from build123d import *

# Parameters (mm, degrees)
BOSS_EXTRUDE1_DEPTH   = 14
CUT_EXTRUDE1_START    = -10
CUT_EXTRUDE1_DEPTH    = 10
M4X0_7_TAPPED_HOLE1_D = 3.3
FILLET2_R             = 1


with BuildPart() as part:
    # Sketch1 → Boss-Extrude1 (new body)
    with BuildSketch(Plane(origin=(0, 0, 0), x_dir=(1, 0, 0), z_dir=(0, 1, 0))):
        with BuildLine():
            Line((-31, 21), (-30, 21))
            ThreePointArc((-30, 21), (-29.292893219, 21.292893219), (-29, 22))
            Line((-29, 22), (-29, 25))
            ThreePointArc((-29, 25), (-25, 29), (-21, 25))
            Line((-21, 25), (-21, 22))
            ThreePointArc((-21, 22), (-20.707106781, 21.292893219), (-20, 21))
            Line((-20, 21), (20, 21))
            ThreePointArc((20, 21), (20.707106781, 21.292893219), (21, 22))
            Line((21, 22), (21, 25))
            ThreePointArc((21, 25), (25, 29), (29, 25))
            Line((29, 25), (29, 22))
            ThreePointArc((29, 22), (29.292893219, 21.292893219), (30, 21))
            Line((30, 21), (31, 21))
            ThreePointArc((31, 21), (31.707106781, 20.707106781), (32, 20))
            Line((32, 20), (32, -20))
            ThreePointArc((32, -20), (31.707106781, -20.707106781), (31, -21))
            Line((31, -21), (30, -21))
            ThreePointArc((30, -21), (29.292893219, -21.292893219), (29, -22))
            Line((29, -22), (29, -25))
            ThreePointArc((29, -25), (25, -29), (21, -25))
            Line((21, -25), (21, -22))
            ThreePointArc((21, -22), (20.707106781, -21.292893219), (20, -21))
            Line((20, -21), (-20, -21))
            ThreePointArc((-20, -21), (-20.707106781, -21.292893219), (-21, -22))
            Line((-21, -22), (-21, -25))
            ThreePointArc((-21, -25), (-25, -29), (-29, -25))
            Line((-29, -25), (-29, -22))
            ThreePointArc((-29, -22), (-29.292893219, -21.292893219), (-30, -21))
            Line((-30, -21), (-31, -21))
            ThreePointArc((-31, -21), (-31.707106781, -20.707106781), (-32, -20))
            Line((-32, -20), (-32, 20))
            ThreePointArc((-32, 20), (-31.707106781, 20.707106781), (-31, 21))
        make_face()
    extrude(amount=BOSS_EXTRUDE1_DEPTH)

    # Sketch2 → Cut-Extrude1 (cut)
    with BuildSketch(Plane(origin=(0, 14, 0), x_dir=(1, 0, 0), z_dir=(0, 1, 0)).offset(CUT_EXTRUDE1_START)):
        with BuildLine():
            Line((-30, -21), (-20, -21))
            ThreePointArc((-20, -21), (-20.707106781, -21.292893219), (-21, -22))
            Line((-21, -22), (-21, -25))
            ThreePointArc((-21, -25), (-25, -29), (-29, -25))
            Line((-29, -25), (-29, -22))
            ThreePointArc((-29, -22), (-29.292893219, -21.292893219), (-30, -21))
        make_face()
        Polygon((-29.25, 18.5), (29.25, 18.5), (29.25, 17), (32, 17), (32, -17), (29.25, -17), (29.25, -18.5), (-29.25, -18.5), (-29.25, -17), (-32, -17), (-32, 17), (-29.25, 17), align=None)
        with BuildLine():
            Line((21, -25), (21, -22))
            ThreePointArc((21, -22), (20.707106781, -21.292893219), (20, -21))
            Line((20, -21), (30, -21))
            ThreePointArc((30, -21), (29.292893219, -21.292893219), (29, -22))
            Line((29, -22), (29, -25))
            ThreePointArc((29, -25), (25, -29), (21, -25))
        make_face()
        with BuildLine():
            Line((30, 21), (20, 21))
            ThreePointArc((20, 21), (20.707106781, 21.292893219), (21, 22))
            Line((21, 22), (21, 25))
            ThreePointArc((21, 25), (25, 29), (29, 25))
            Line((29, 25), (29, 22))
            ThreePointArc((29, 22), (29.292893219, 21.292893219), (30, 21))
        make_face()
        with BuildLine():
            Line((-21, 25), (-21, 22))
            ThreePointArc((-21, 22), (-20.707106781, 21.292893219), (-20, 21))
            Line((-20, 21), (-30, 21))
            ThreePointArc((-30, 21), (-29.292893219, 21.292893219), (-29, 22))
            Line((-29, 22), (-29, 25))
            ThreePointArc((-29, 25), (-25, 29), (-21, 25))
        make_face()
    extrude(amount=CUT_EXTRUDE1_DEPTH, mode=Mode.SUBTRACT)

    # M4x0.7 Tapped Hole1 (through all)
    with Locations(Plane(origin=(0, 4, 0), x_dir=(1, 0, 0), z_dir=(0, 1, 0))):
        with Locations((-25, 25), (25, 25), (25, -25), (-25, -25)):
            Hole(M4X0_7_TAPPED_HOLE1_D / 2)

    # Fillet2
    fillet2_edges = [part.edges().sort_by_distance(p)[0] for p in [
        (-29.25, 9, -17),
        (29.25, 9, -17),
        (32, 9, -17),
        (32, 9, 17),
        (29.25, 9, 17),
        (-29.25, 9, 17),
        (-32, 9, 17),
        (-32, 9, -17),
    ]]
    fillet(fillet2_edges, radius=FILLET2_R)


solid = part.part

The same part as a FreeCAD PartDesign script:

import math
import FreeCAD as App
import Part
import Sketcher
from FreeCAD import Vector


def edges_at(feature, points):
    """Names of the edges that pass closest to the given points."""
    edges = feature.Shape.Edges
    near = lambda p: min(range(len(edges)), key=lambda i: edges[i].distToShape(Part.Vertex(*p))[0])
    return sorted({f"Edge{near(p) + 1}" for p in points})

doc = App.newDocument("Part")
body = doc.addObject("PartDesign::Body", "Body")

# Sketch on XZ plane
sketch1 = doc.addObject("Sketcher::SketchObject", "Sketch")
body.addObject(sketch1)
sketch1.AttachmentSupport = (doc.XZ_Plane, [""])
sketch1.MapMode = "FlatFace"
sketch1.addGeometry(Part.LineSegment(Vector(-30, -21, 0), Vector(-31, -21, 0)), False)
sketch1.addGeometry(Part.ArcOfCircle(Part.Circle(Vector(-31, -20, 0), Vector(0, 0, 1), 1), math.radians(-180), math.radians(-90)), False)
sketch1.addGeometry(Part.LineSegment(Vector(-32, -20, 0), Vector(-32, 20, 0)), False)
sketch1.addGeometry(Part.ArcOfCircle(Part.Circle(Vector(-31, 20, 0), Vector(0, 0, 1), 1), math.radians(90), math.radians(180)), False)
sketch1.addGeometry(Part.LineSegment(Vector(-31, 21, 0), Vector(-30, 21, 0)), False)
sketch1.addGeometry(Part.ArcOfCircle(Part.Circle(Vector(-30, 22, 0), Vector(0, 0, 1), 1), math.radians(-90), math.radians(0)), False)
sketch1.addGeometry(Part.LineSegment(Vector(-29, 22, 0), Vector(-29, 25, 0)), False)
sketch1.addGeometry(Part.ArcOfCircle(Part.Circle(Vector(-25, 25, 0), Vector(0, 0, 1), 4), math.radians(0), math.radians(180)), False)
sketch1.addGeometry(Part.LineSegment(Vector(-21, 25, 0), Vector(-21, 22, 0)), False)
sketch1.addGeometry(Part.ArcOfCircle(Part.Circle(Vector(-20, 22, 0), Vector(0, 0, 1), 1), math.radians(-180), math.radians(-90)), False)
sketch1.addGeometry(Part.LineSegment(Vector(-20, 21, 0), Vector(20, 21, 0)), False)
sketch1.addGeometry(Part.ArcOfCircle(Part.Circle(Vector(20, 22, 0), Vector(0, 0, 1), 1), math.radians(-90), math.radians(0)), False)
sketch1.addGeometry(Part.LineSegment(Vector(21, 22, 0), Vector(21, 25, 0)), False)
sketch1.addGeometry(Part.ArcOfCircle(Part.Circle(Vector(25, 25, 0), Vector(0, 0, 1), 4), math.radians(0), math.radians(180)), False)
sketch1.addGeometry(Part.LineSegment(Vector(29, 25, 0), Vector(29, 22, 0)), False)
sketch1.addGeometry(Part.ArcOfCircle(Part.Circle(Vector(30, 22, 0), Vector(0, 0, 1), 1), math.radians(-180), math.radians(-90)), False)
sketch1.addGeometry(Part.LineSegment(Vector(30, 21, 0), Vector(31, 21, 0)), False)
sketch1.addGeometry(Part.ArcOfCircle(Part.Circle(Vector(31, 20, 0), Vector(0, 0, 1), 1), math.radians(0), math.radians(90)), False)
sketch1.addGeometry(Part.LineSegment(Vector(32, 20, 0), Vector(32, -20, 0)), False)
sketch1.addGeometry(Part.ArcOfCircle(Part.Circle(Vector(31, -20, 0), Vector(0, 0, 1), 1), math.radians(-90), math.radians(0)), False)
sketch1.addGeometry(Part.LineSegment(Vector(31, -21, 0), Vector(30, -21, 0)), False)
sketch1.addGeometry(Part.ArcOfCircle(Part.Circle(Vector(30, -22, 0), Vector(0, 0, 1), 1), math.radians(90), math.radians(180)), False)
sketch1.addGeometry(Part.LineSegment(Vector(29, -22, 0), Vector(29, -25, 0)), False)
sketch1.addGeometry(Part.ArcOfCircle(Part.Circle(Vector(25, -25, 0), Vector(0, 0, 1), 4), math.radians(180), math.radians(360)), False)
sketch1.addGeometry(Part.LineSegment(Vector(21, -25, 0), Vector(21, -22, 0)), False)
sketch1.addGeometry(Part.ArcOfCircle(Part.Circle(Vector(20, -22, 0), Vector(0, 0, 1), 1), math.radians(0), math.radians(90)), False)
sketch1.addGeometry(Part.LineSegment(Vector(20, -21, 0), Vector(-20, -21, 0)), False)
sketch1.addGeometry(Part.ArcOfCircle(Part.Circle(Vector(-20, -22, 0), Vector(0, 0, 1), 1), math.radians(90), math.radians(180)), False)
sketch1.addGeometry(Part.LineSegment(Vector(-21, -22, 0), Vector(-21, -25, 0)), False)
sketch1.addGeometry(Part.ArcOfCircle(Part.Circle(Vector(-25, -25, 0), Vector(0, 0, 1), 4), math.radians(180), math.radians(360)), False)
sketch1.addGeometry(Part.LineSegment(Vector(-29, -25, 0), Vector(-29, -22, 0)), False)
sketch1.addGeometry(Part.ArcOfCircle(Part.Circle(Vector(-30, -22, 0), Vector(0, 0, 1), 1), math.radians(0), math.radians(90)), False)
sketch1.addConstraint(Sketcher.Constraint("Tangent", 0, 2, 1, 2))
sketch1.addConstraint(Sketcher.Constraint("Tangent", 1, 1, 2, 1))
sketch1.addConstraint(Sketcher.Constraint("Tangent", 2, 2, 3, 2))
sketch1.addConstraint(Sketcher.Constraint("Tangent", 3, 1, 4, 1))
sketch1.addConstraint(Sketcher.Constraint("Tangent", 4, 2, 5, 1))
sketch1.addConstraint(Sketcher.Constraint("Tangent", 5, 2, 6, 1))
sketch1.addConstraint(Sketcher.Constraint("Tangent", 6, 2, 7, 2))
sketch1.addConstraint(Sketcher.Constraint("Tangent", 7, 1, 8, 1))
sketch1.addConstraint(Sketcher.Constraint("Tangent", 8, 2, 9, 1))
sketch1.addConstraint(Sketcher.Constraint("Tangent", 9, 2, 10, 1))
sketch1.addConstraint(Sketcher.Constraint("Tangent", 10, 2, 11, 1))
sketch1.addConstraint(Sketcher.Constraint("Tangent", 11, 2, 12, 1))
sketch1.addConstraint(Sketcher.Constraint("Tangent", 12, 2, 13, 2))
sketch1.addConstraint(Sketcher.Constraint("Tangent", 13, 1, 14, 1))
sketch1.addConstraint(Sketcher.Constraint("Tangent", 14, 2, 15, 1))
sketch1.addConstraint(Sketcher.Constraint("Tangent", 15, 2, 16, 1))
sketch1.addConstraint(Sketcher.Constraint("Tangent", 16, 2, 17, 2))
sketch1.addConstraint(Sketcher.Constraint("Tangent", 17, 1, 18, 1))
sketch1.addConstraint(Sketcher.Constraint("Tangent", 18, 2, 19, 2))
sketch1.addConstraint(Sketcher.Constraint("Tangent", 19, 1, 20, 1))
sketch1.addConstraint(Sketcher.Constraint("Tangent", 20, 2, 21, 1))
sketch1.addConstraint(Sketcher.Constraint("Tangent", 21, 2, 22, 1))
sketch1.addConstraint(Sketcher.Constraint("Tangent", 22, 2, 23, 2))
sketch1.addConstraint(Sketcher.Constraint("Tangent", 23, 1, 24, 1))
sketch1.addConstraint(Sketcher.Constraint("Tangent", 24, 2, 25, 1))
sketch1.addConstraint(Sketcher.Constraint("Tangent", 25, 2, 26, 1))
sketch1.addConstraint(Sketcher.Constraint("Tangent", 26, 2, 27, 1))
sketch1.addConstraint(Sketcher.Constraint("Tangent", 27, 2, 28, 1))
sketch1.addConstraint(Sketcher.Constraint("Tangent", 28, 2, 29, 2))
sketch1.addConstraint(Sketcher.Constraint("Tangent", 29, 1, 30, 1))
sketch1.addConstraint(Sketcher.Constraint("Tangent", 30, 2, 31, 1))
sketch1.addConstraint(Sketcher.Constraint("Tangent", 31, 2, 0, 1))
sketch1.addConstraint(Sketcher.Constraint("Horizontal", 0))
sketch1.addConstraint(Sketcher.Constraint("Vertical", 2))
sketch1.addConstraint(Sketcher.Constraint("Horizontal", 4))
sketch1.addConstraint(Sketcher.Constraint("Vertical", 6))
sketch1.addConstraint(Sketcher.Constraint("Vertical", 8))
sketch1.addConstraint(Sketcher.Constraint("Horizontal", 10))
sketch1.addConstraint(Sketcher.Constraint("Vertical", 12))
sketch1.addConstraint(Sketcher.Constraint("Vertical", 14))
sketch1.addConstraint(Sketcher.Constraint("Horizontal", 16))
sketch1.addConstraint(Sketcher.Constraint("Vertical", 18))
sketch1.addConstraint(Sketcher.Constraint("Horizontal", 20))
sketch1.addConstraint(Sketcher.Constraint("Vertical", 22))
sketch1.addConstraint(Sketcher.Constraint("Vertical", 24))
sketch1.addConstraint(Sketcher.Constraint("Horizontal", 26))
sketch1.addConstraint(Sketcher.Constraint("Vertical", 28))
sketch1.addConstraint(Sketcher.Constraint("Vertical", 30))
sketch1.addConstraint(Sketcher.Constraint("Equal", 1, 3))
sketch1.addConstraint(Sketcher.Constraint("Equal", 3, 5))
sketch1.addConstraint(Sketcher.Constraint("Equal", 5, 9))
sketch1.addConstraint(Sketcher.Constraint("Equal", 9, 11))
sketch1.addConstraint(Sketcher.Constraint("Equal", 7, 13))
sketch1.addConstraint(Sketcher.Constraint("Equal", 11, 15))
sketch1.addConstraint(Sketcher.Constraint("Equal", 15, 17))
sketch1.addConstraint(Sketcher.Constraint("Equal", 17, 19))
sketch1.addConstraint(Sketcher.Constraint("Equal", 19, 21))
sketch1.addConstraint(Sketcher.Constraint("Equal", 13, 23))
sketch1.addConstraint(Sketcher.Constraint("Equal", 21, 25))
sketch1.addConstraint(Sketcher.Constraint("Equal", 25, 27))
sketch1.addConstraint(Sketcher.Constraint("Equal", 23, 29))
sketch1.addConstraint(Sketcher.Constraint("Equal", 27, 31))
sketch1.addConstraint(Sketcher.Constraint("Symmetric", 1, 3, 17, 3, -1, 1))
sketch1.addConstraint(Sketcher.Constraint("Symmetric", 5, 3, 21, 3, -1, 1))
sketch1.addConstraint(Sketcher.Constraint("Symmetric", 11, 3, 27, 3, -1, 1))
sketch1.addConstraint(Sketcher.Constraint("Symmetric", 7, 3, 13, 3, -2))
sketch1.addConstraint(Sketcher.Constraint("Horizontal", 5, 3, 9, 3))
sketch1.addConstraint(Sketcher.Constraint("Horizontal", 11, 3, 15, 3))
sketch1.addConstraint(Sketcher.Constraint("Horizontal", 23, 3, 29, 3))
sketch1.addConstraint(Sketcher.Constraint("Equal", 26, 2))
sketch1.addConstraint(Sketcher.Constraint("Equal", 14, 22))
sketch1.addConstraint(Sketcher.Constraint("Radius", 1, 1.0))
sketch1.addConstraint(Sketcher.Constraint("Radius", 7, 4.0))
sketch1.addConstraint(Sketcher.Constraint("DistanceX", 0, 2, 0, 1, 1.0))
sketch1.addConstraint(Sketcher.Constraint("DistanceX", 10, 1, 10, 2, 40.0))
sketch1.addConstraint(Sketcher.Constraint("DistanceY", 6, 1, 6, 2, 3.0))
pad1 = doc.addObject("PartDesign::Pad", "Pad")
body.addObject(pad1)
pad1.Profile = sketch1
pad1.Length = 14
pad1.Reversed = True

# Sketch on XZ plane
sketch2 = doc.addObject("Sketcher::SketchObject", "Sketch001")
body.addObject(sketch2)
sketch2.AttachmentSupport = (doc.XZ_Plane, [""])
sketch2.MapMode = "FlatFace"
sketch2.AttachmentOffset = App.Placement(Vector(0, 0, -4), App.Rotation())
sketch2.addGeometry(Part.LineSegment(Vector(-20, 21, 0), Vector(-30, 21, 0)), False)
sketch2.addGeometry(Part.ArcOfCircle(Part.Circle(Vector(-30, 22, 0), Vector(0, 0, 1), 1), math.radians(-90), math.radians(0)), False)
sketch2.addGeometry(Part.LineSegment(Vector(-29, 22, 0), Vector(-29, 25, 0)), False)
sketch2.addGeometry(Part.ArcOfCircle(Part.Circle(Vector(-25, 25, 0), Vector(0, 0, 1), 4), math.radians(0), math.radians(180)), False)
sketch2.addGeometry(Part.LineSegment(Vector(-21, 25, 0), Vector(-21, 22, 0)), False)
sketch2.addGeometry(Part.ArcOfCircle(Part.Circle(Vector(-20, 22, 0), Vector(0, 0, 1), 1), math.radians(-180), math.radians(-90)), False)
sketch2.addGeometry(Part.LineSegment(Vector(29.2, -18.5, 0), Vector(-29.2, -18.5, 0)), False)
sketch2.addGeometry(Part.LineSegment(Vector(-29.2, -18.5, 0), Vector(-29.2, -17, 0)), False)
sketch2.addGeometry(Part.LineSegment(Vector(-29.2, -17, 0), Vector(-32, -17, 0)), False)
sketch2.addGeometry(Part.LineSegment(Vector(-32, -17, 0), Vector(-32, 17, 0)), False)
sketch2.addGeometry(Part.LineSegment(Vector(-32, 17, 0), Vector(-29.2, 17, 0)), False)
sketch2.addGeometry(Part.LineSegment(Vector(-29.2, 17, 0), Vector(-29.2, 18.5, 0)), False)
sketch2.addGeometry(Part.LineSegment(Vector(-29.2, 18.5, 0), Vector(29.2, 18.5, 0)), False)
sketch2.addGeometry(Part.LineSegment(Vector(29.2, 18.5, 0), Vector(29.2, 17, 0)), False)
sketch2.addGeometry(Part.LineSegment(Vector(29.2, 17, 0), Vector(32, 17, 0)), False)
sketch2.addGeometry(Part.LineSegment(Vector(32, 17, 0), Vector(32, -17, 0)), False)
sketch2.addGeometry(Part.LineSegment(Vector(32, -17, 0), Vector(29.2, -17, 0)), False)
sketch2.addGeometry(Part.LineSegment(Vector(29.2, -17, 0), Vector(29.2, -18.5, 0)), False)
sketch2.addGeometry(Part.LineSegment(Vector(21, 22, 0), Vector(21, 25, 0)), False)
sketch2.addGeometry(Part.ArcOfCircle(Part.Circle(Vector(25, 25, 0), Vector(0, 0, 1), 4), math.radians(0), math.radians(180)), False)
sketch2.addGeometry(Part.LineSegment(Vector(29, 25, 0), Vector(29, 22, 0)), False)
sketch2.addGeometry(Part.ArcOfCircle(Part.Circle(Vector(30, 22, 0), Vector(0, 0, 1), 1), math.radians(-180), math.radians(-90)), False)
sketch2.addGeometry(Part.LineSegment(Vector(30, 21, 0), Vector(20, 21, 0)), False)
sketch2.addGeometry(Part.ArcOfCircle(Part.Circle(Vector(20, 22, 0), Vector(0, 0, 1), 1), math.radians(-90), math.radians(0)), False)
sketch2.addGeometry(Part.LineSegment(Vector(20, -21, 0), Vector(30, -21, 0)), False)
sketch2.addGeometry(Part.ArcOfCircle(Part.Circle(Vector(30, -22, 0), Vector(0, 0, 1), 1), math.radians(90), math.radians(180)), False)
sketch2.addGeometry(Part.LineSegment(Vector(29, -22, 0), Vector(29, -25, 0)), False)
sketch2.addGeometry(Part.ArcOfCircle(Part.Circle(Vector(25, -25, 0), Vector(0, 0, 1), 4), math.radians(180), math.radians(360)), False)
sketch2.addGeometry(Part.LineSegment(Vector(21, -25, 0), Vector(21, -22, 0)), False)
sketch2.addGeometry(Part.ArcOfCircle(Part.Circle(Vector(20, -22, 0), Vector(0, 0, 1), 1), math.radians(0), math.radians(90)), False)
sketch2.addGeometry(Part.LineSegment(Vector(-21, -22, 0), Vector(-21, -25, 0)), False)
sketch2.addGeometry(Part.ArcOfCircle(Part.Circle(Vector(-25, -25, 0), Vector(0, 0, 1), 4), math.radians(180), math.radians(360)), False)
sketch2.addGeometry(Part.LineSegment(Vector(-29, -25, 0), Vector(-29, -22, 0)), False)
sketch2.addGeometry(Part.ArcOfCircle(Part.Circle(Vector(-30, -22, 0), Vector(0, 0, 1), 1), math.radians(0), math.radians(90)), False)
sketch2.addGeometry(Part.LineSegment(Vector(-30, -21, 0), Vector(-20, -21, 0)), False)
sketch2.addGeometry(Part.ArcOfCircle(Part.Circle(Vector(-20, -22, 0), Vector(0, 0, 1), 1), math.radians(90), math.radians(180)), False)
sketch2.addConstraint(Sketcher.Constraint("Tangent", 0, 2, 1, 1))
sketch2.addConstraint(Sketcher.Constraint("Tangent", 1, 2, 2, 1))
sketch2.addConstraint(Sketcher.Constraint("Tangent", 2, 2, 3, 2))
sketch2.addConstraint(Sketcher.Constraint("Tangent", 3, 1, 4, 1))
sketch2.addConstraint(Sketcher.Constraint("Tangent", 4, 2, 5, 1))
sketch2.addConstraint(Sketcher.Constraint("Tangent", 5, 2, 0, 1))
sketch2.addConstraint(Sketcher.Constraint("Coincident", 6, 2, 7, 1))
sketch2.addConstraint(Sketcher.Constraint("Coincident", 7, 2, 8, 1))
sketch2.addConstraint(Sketcher.Constraint("Coincident", 8, 2, 9, 1))
sketch2.addConstraint(Sketcher.Constraint("Coincident", 9, 2, 10, 1))
sketch2.addConstraint(Sketcher.Constraint("Coincident", 10, 2, 11, 1))
sketch2.addConstraint(Sketcher.Constraint("Coincident", 11, 2, 12, 1))
sketch2.addConstraint(Sketcher.Constraint("Coincident", 12, 2, 13, 1))
sketch2.addConstraint(Sketcher.Constraint("Coincident", 13, 2, 14, 1))
sketch2.addConstraint(Sketcher.Constraint("Coincident", 14, 2, 15, 1))
sketch2.addConstraint(Sketcher.Constraint("Coincident", 15, 2, 16, 1))
sketch2.addConstraint(Sketcher.Constraint("Coincident", 16, 2, 17, 1))
sketch2.addConstraint(Sketcher.Constraint("Coincident", 17, 2, 6, 1))
sketch2.addConstraint(Sketcher.Constraint("Tangent", 18, 2, 19, 2))
sketch2.addConstraint(Sketcher.Constraint("Tangent", 19, 1, 20, 1))
sketch2.addConstraint(Sketcher.Constraint("Tangent", 20, 2, 21, 1))
sketch2.addConstraint(Sketcher.Constraint("Tangent", 21, 2, 22, 1))
sketch2.addConstraint(Sketcher.Constraint("Tangent", 22, 2, 23, 1))
sketch2.addConstraint(Sketcher.Constraint("Tangent", 23, 2, 18, 1))
sketch2.addConstraint(Sketcher.Constraint("Tangent", 24, 2, 25, 1))
sketch2.addConstraint(Sketcher.Constraint("Tangent", 25, 2, 26, 1))
sketch2.addConstraint(Sketcher.Constraint("Tangent", 26, 2, 27, 2))
sketch2.addConstraint(Sketcher.Constraint("Tangent", 27, 1, 28, 1))
sketch2.addConstraint(Sketcher.Constraint("Tangent", 28, 2, 29, 1))
sketch2.addConstraint(Sketcher.Constraint("Tangent", 29, 2, 24, 1))
sketch2.addConstraint(Sketcher.Constraint("Tangent", 30, 2, 31, 2))
sketch2.addConstraint(Sketcher.Constraint("Tangent", 31, 1, 32, 1))
sketch2.addConstraint(Sketcher.Constraint("Tangent", 32, 2, 33, 1))
sketch2.addConstraint(Sketcher.Constraint("Tangent", 33, 2, 34, 1))
sketch2.addConstraint(Sketcher.Constraint("Tangent", 34, 2, 35, 1))
sketch2.addConstraint(Sketcher.Constraint("Tangent", 35, 2, 30, 1))
sketch2.addConstraint(Sketcher.Constraint("Horizontal", 0))
sketch2.addConstraint(Sketcher.Constraint("Vertical", 2))
sketch2.addConstraint(Sketcher.Constraint("Vertical", 4))
sketch2.addConstraint(Sketcher.Constraint("Horizontal", 6))
sketch2.addConstraint(Sketcher.Constraint("Vertical", 7))
sketch2.addConstraint(Sketcher.Constraint("Horizontal", 8))
sketch2.addConstraint(Sketcher.Constraint("Vertical", 9))
sketch2.addConstraint(Sketcher.Constraint("Horizontal", 10))
sketch2.addConstraint(Sketcher.Constraint("Vertical", 11))
sketch2.addConstraint(Sketcher.Constraint("Horizontal", 12))
sketch2.addConstraint(Sketcher.Constraint("Vertical", 13))
sketch2.addConstraint(Sketcher.Constraint("Horizontal", 14))
sketch2.addConstraint(Sketcher.Constraint("Vertical", 15))
sketch2.addConstraint(Sketcher.Constraint("Horizontal", 16))
sketch2.addConstraint(Sketcher.Constraint("Vertical", 17))
sketch2.addConstraint(Sketcher.Constraint("Vertical", 18))
sketch2.addConstraint(Sketcher.Constraint("Vertical", 20))
sketch2.addConstraint(Sketcher.Constraint("Horizontal", 22))
sketch2.addConstraint(Sketcher.Constraint("Horizontal", 24))
sketch2.addConstraint(Sketcher.Constraint("Vertical", 26))
sketch2.addConstraint(Sketcher.Constraint("Vertical", 28))
sketch2.addConstraint(Sketcher.Constraint("Vertical", 30))
sketch2.addConstraint(Sketcher.Constraint("Vertical", 32))
sketch2.addConstraint(Sketcher.Constraint("Horizontal", 34))
sketch2.addConstraint(Sketcher.Constraint("Equal", 1, 5))
sketch2.addConstraint(Sketcher.Constraint("Equal", 3, 19))
sketch2.addConstraint(Sketcher.Constraint("Equal", 5, 21))
sketch2.addConstraint(Sketcher.Constraint("Equal", 21, 23))
sketch2.addConstraint(Sketcher.Constraint("Equal", 23, 25))
sketch2.addConstraint(Sketcher.Constraint("Equal", 19, 27))
sketch2.addConstraint(Sketcher.Constraint("Equal", 25, 29))
sketch2.addConstraint(Sketcher.Constraint("Equal", 27, 31))
sketch2.addConstraint(Sketcher.Constraint("Equal", 29, 33))
sketch2.addConstraint(Sketcher.Constraint("Equal", 33, 35))
sketch2.addConstraint(Sketcher.Constraint("Symmetric", 1, 3, 25, 3, -1, 1))
sketch2.addConstraint(Sketcher.Constraint("Symmetric", 19, 3, 31, 3, -1, 1))
sketch2.addConstraint(Sketcher.Constraint("Symmetric", 6, 2, 12, 2, -1, 1))
sketch2.addConstraint(Sketcher.Constraint("Symmetric", 8, 2, 14, 2, -1, 1))
sketch2.addConstraint(Sketcher.Constraint("Symmetric", 10, 2, 16, 2, -1, 1))
sketch2.addConstraint(Sketcher.Constraint("Symmetric", 3, 3, 19, 3, -2))
sketch2.addConstraint(Sketcher.Constraint("Symmetric", 10, 2, 13, 2, -2))
sketch2.addConstraint(Sketcher.Constraint("Horizontal", 5, 3, 21, 3))
sketch2.addConstraint(Sketcher.Constraint("Horizontal", 27, 3, 31, 3))
sketch2.addConstraint(Sketcher.Constraint("Horizontal", 29, 3, 33, 3))
sketch2.addConstraint(Sketcher.Constraint("Radius", 1, 1.0))
sketch2.addConstraint(Sketcher.Constraint("Radius", 3, 4.0))
sketch2.addConstraint(Sketcher.Constraint("DistanceY", 2, 1, 2, 2, 3.0))
sketch2.addConstraint(Sketcher.Constraint("DistanceY", 9, 1, 9, 2, 34.0))
sketch2.addConstraint(Sketcher.Constraint("DistanceX", 6, 2, 6, 1, 58.5))
sketch2.addConstraint(Sketcher.Constraint("DistanceY", 7, 1, 7, 2, 1.5))
sketch2.addConstraint(Sketcher.Constraint("DistanceX", 1, 3, -1, 1, 30.0))
sketch2.addConstraint(Sketcher.Constraint("DistanceY", -1, 1, 1, 3, 22.0))
sketch2.addConstraint(Sketcher.Constraint("DistanceX", 8, 2, -1, 1, 32.0))
pocket1 = doc.addObject("PartDesign::Pocket", "Pocket")
body.addObject(pocket1)
pocket1.Profile = sketch2
pocket1.Length = 10

# Sketch on XZ plane
sketch3 = doc.addObject("Sketcher::SketchObject", "Sketch002")
body.addObject(sketch3)
sketch3.AttachmentSupport = (doc.XZ_Plane, [""])
sketch3.MapMode = "FlatFace"
sketch3.AttachmentOffset = App.Placement(Vector(0, 0, -4), App.Rotation())
sketch3.addGeometry(Part.Circle(Vector(-25, -25, 0), Vector(0, 0, 1), 1.6), False)
sketch3.addGeometry(Part.Circle(Vector(25, -25, 0), Vector(0, 0, 1), 1.6), False)
sketch3.addGeometry(Part.Circle(Vector(25, 25, 0), Vector(0, 0, 1), 1.6), False)
sketch3.addGeometry(Part.Circle(Vector(-25, 25, 0), Vector(0, 0, 1), 1.6), False)
sketch3.addConstraint(Sketcher.Constraint("Equal", 0, 1))
sketch3.addConstraint(Sketcher.Constraint("Equal", 1, 2))
sketch3.addConstraint(Sketcher.Constraint("Equal", 2, 3))
sketch3.addConstraint(Sketcher.Constraint("Symmetric", 0, 3, 2, 3, -1, 1))
sketch3.addConstraint(Sketcher.Constraint("Symmetric", 1, 3, 3, 3, -1, 1))
sketch3.addConstraint(Sketcher.Constraint("Symmetric", 0, 3, 1, 3, -2))
sketch3.addConstraint(Sketcher.Constraint("Diameter", 0, 3.3))
sketch3.addConstraint(Sketcher.Constraint("DistanceX", 0, 3, -1, 1, 25.0))
sketch3.addConstraint(Sketcher.Constraint("DistanceY", 0, 3, -1, 1, 25.0))
doc.recompute()
hole = doc.addObject("PartDesign::Hole", "Hole")
body.addObject(hole)
hole.Profile = sketch3
hole.ThreadType = "None"
hole.Diameter = 3.3
hole.DepthType = "ThroughAll"
hole.Reversed = True
doc.recompute()

fillet = doc.addObject("PartDesign::Fillet", "Fillet")
body.addObject(fillet)
fillet.Base = (hole, edges_at(hole, [
    (-29.25, 9, -17),
    (29.25, 9, -17),
    (32, 9, -17),
    (32, 9, 17),
    (29.25, 9, 17),
    (-29.25, 9, 17),
    (-32, 9, 17),
    (-32, 9, -17),
]))
fillet.Radius = 1

doc.recompute()
